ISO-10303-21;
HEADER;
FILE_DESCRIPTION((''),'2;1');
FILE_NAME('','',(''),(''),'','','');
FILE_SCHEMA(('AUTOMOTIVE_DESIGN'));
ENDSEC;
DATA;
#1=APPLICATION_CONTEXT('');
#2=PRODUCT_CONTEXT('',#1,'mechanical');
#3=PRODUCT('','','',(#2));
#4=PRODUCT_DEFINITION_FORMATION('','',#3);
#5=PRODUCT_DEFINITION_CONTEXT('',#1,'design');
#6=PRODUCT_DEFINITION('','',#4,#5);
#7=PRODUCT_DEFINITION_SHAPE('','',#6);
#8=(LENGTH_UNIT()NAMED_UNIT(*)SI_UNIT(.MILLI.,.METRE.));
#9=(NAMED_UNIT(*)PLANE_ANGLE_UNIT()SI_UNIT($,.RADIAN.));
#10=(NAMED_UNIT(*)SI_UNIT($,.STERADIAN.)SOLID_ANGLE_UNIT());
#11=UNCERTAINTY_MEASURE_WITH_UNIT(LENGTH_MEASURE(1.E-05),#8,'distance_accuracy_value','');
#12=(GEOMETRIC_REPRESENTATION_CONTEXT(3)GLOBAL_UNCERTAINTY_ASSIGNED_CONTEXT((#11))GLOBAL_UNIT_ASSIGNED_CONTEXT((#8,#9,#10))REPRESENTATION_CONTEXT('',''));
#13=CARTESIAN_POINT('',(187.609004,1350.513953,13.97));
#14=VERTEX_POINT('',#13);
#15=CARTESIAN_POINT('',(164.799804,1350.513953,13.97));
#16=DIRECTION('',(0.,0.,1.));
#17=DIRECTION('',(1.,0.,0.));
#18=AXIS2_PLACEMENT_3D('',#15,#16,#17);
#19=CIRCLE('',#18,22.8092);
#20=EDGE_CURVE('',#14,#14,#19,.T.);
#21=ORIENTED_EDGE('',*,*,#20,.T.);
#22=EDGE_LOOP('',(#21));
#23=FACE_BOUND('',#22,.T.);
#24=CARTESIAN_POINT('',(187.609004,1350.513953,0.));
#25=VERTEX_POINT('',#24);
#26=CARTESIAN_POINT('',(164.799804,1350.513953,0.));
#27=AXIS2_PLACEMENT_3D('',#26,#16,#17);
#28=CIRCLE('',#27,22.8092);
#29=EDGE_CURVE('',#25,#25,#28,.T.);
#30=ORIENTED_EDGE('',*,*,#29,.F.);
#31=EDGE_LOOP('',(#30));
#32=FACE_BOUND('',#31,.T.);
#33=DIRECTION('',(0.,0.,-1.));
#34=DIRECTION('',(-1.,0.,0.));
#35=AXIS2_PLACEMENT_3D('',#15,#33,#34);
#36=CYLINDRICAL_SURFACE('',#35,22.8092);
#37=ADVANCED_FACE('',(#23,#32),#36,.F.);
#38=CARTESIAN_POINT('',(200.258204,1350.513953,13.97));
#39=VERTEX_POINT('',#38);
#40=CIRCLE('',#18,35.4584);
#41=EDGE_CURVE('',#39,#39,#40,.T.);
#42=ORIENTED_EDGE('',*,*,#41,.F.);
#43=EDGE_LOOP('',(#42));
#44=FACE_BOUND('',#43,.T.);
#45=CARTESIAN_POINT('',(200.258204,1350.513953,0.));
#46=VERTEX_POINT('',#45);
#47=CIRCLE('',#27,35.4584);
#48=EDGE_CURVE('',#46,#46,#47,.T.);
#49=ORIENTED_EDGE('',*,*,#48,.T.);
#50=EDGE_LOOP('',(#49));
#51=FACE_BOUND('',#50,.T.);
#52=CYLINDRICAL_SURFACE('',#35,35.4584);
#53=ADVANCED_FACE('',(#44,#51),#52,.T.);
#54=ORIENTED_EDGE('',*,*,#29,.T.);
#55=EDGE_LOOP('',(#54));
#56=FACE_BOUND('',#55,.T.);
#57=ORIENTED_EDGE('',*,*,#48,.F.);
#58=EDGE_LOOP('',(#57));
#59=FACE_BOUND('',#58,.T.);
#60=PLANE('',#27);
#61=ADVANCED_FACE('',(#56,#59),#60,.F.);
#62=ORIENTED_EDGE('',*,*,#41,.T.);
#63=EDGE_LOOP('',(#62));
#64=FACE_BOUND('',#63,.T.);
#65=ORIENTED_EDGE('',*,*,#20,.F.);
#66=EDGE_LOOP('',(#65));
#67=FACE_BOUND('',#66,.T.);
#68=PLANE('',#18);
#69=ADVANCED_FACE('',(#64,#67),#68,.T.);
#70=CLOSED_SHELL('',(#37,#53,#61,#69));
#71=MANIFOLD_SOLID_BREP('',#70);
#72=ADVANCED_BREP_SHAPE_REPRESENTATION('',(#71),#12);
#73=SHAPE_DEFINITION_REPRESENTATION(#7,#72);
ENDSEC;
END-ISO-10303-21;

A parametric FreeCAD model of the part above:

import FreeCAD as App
import Part
import Sketcher
Q = App.Units.Quantity

doc = App.newDocument("Part")
body = doc.addObject("PartDesign::Body", "Body")

sketch1 = doc.addObject("Sketcher::SketchObject", "Sketch")
body.addObject(sketch1)
sketch1.AttachmentSupport = (doc.XY_Plane, [""])
sketch1.MapMode = "FlatFace"
sketch1.addGeometry([
    Part.Circle(App.Vector(165, 1351, 0), App.Vector(0, 0, 1), 35),
    Part.Circle(App.Vector(165, 1351, 0), App.Vector(0, 0, 1), 23),
], False)
sketch1.addConstraint([
    Sketcher.Constraint("Coincident", 1, 3, 0, 3),
    Sketcher.Constraint("Diameter", 0, Q("2.792 in")),
    Sketcher.Constraint("Diameter", 1, Q("1.796 in")),
    Sketcher.Constraint("DistanceX", -1, 1, 0, 3, Q("164.799804 mm")),
    Sketcher.Constraint("DistanceY", -1, 1, 0, 3, Q("1350.513953 mm")),
])
pad1 = doc.addObject("PartDesign::Pad", "Pad")
body.addObject(pad1)
pad1.Profile = sketch1
pad1.Length = Q("0.55 in")

doc.recompute()
